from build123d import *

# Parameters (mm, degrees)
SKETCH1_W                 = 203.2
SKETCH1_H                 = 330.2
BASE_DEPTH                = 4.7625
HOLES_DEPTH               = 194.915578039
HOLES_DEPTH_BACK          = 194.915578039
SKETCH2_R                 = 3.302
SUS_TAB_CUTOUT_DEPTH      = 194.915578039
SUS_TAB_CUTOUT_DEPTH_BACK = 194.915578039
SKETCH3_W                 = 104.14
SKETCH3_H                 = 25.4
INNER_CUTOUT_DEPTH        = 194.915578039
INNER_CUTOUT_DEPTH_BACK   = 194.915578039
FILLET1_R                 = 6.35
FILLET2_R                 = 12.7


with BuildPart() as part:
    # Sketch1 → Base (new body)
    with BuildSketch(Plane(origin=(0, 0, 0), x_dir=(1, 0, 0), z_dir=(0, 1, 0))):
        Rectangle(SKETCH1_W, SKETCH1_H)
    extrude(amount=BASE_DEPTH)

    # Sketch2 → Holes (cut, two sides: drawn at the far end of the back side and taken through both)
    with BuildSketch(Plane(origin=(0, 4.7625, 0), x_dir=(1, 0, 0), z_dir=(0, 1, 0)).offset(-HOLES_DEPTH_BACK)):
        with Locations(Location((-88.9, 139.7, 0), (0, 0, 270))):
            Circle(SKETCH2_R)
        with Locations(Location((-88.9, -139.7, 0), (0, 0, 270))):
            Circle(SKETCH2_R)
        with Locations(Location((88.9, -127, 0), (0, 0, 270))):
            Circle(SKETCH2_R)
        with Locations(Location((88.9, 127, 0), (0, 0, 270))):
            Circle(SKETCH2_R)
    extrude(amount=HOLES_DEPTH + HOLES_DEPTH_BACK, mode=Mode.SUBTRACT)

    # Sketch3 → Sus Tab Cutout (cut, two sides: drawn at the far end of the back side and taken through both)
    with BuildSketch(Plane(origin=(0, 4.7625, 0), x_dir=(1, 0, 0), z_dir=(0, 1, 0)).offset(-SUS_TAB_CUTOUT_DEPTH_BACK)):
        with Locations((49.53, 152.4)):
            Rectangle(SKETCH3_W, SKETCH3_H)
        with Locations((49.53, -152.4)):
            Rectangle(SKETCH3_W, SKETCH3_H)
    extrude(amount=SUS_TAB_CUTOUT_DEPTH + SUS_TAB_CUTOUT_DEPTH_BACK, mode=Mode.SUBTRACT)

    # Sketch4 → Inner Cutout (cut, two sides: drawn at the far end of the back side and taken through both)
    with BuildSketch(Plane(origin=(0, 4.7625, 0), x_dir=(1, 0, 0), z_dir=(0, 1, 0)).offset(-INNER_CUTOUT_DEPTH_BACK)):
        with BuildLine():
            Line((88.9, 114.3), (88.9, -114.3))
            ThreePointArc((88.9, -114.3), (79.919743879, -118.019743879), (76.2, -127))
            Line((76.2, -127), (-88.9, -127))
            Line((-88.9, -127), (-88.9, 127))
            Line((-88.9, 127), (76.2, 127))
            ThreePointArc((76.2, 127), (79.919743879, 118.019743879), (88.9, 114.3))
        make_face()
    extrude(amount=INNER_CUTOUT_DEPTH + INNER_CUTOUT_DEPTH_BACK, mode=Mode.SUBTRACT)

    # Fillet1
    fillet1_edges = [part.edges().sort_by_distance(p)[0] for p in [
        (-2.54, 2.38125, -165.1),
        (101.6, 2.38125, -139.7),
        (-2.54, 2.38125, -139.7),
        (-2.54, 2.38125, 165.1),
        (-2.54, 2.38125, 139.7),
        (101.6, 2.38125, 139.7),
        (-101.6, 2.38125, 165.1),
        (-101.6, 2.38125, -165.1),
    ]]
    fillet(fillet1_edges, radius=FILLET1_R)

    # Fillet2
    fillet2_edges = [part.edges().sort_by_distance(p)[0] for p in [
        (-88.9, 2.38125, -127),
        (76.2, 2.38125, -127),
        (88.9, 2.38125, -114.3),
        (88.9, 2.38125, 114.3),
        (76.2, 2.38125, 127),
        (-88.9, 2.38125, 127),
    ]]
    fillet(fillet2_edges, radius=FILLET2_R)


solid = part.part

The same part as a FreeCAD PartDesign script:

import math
import FreeCAD as App
import Part
import Sketcher
from FreeCAD import Vector
Q = App.Units.Quantity


def edges_at(feature, points):
    """Names of the edges that pass closest to the given points."""
    edges = feature.Shape.Edges
    near = lambda p: min(range(len(edges)), key=lambda i: edges[i].distToShape(Part.Vertex(*p))[0])
    return sorted({f"Edge{near(p) + 1}" for p in points})

doc = App.newDocument("Part")
params = doc.addObject("Spreadsheet::Sheet", "Params")
for row, (alias, value) in enumerate([
    ("sketch1_width", "8 in"),
    ("sketch1_height", "13 in"),
    ("pad1_length", "0.1875 in"),
    ("sketch2_diameter", "0.26 in"),
    ("sketch3_height", "1 in"),
    ("sketch3_width", "4.1 in"),
    ("sketch4_radius", "0.5 in"),
    ("sketch4_height", "9 in"),
    ("sketch4_height2", "10 in"),
    ("sketch4_width", "6.5 in"),
    ("fillet_radius", "0.25 in"),
    ("fillet2_radius", "0.5 in"),
], start=1):
    params.set(f"A{row}", alias)
    params.set(f"B{row}", "=" + value)
    params.setAlias(f"B{row}", alias)

body = doc.addObject("PartDesign::Body", "Body")

sketch1 = doc.addObject("Sketcher::SketchObject", "Sketch")
body.addObject(sketch1)
sketch1.AttachmentSupport = (doc.XZ_Plane, [""])
sketch1.MapMode = "FlatFace"
sketch1.addGeometry(Part.LineSegment(Vector(-102, -165, 0), Vector(-102, 165, 0)), False)
sketch1.addGeometry(Part.LineSegment(Vector(-102, 165, 0), Vector(102, 165, 0)), False)
sketch1.addGeometry(Part.LineSegment(Vector(102, 165, 0), Vector(102, -165, 0)), False)
sketch1.addGeometry(Part.LineSegment(Vector(102, -165, 0), Vector(-102, -165, 0)), False)
sketch1.addConstraint(Sketcher.Constraint("Coincident", 0, 2, 1, 1))
sketch1.addConstraint(Sketcher.Constraint("Coincident", 1, 2, 2, 1))
sketch1.addConstraint(Sketcher.Constraint("Coincident", 2, 2, 3, 1))
sketch1.addConstraint(Sketcher.Constraint("Coincident", 3, 2, 0, 1))
sketch1.addConstraint(Sketcher.Constraint("Vertical", 0))
sketch1.addConstraint(Sketcher.Constraint("Horizontal", 1))
sketch1.addConstraint(Sketcher.Constraint("Vertical", 2))
sketch1.addConstraint(Sketcher.Constraint("Horizontal", 3))
sketch1.addConstraint(Sketcher.Constraint("Symmetric", 0, 2, 2, 2, -1, 1))
sketch1.addConstraint(Sketcher.Constraint("DistanceX", 1, 1, 1, 2, Q("8 in")))
sketch1.addConstraint(Sketcher.Constraint("DistanceY", 0, 1, 0, 2, Q("13 in")))
sketch1.setExpression("Constraints[9]", "Params.sketch1_width")
sketch1.setExpression("Constraints[10]", "Params.sketch1_height")
pad1 = doc.addObject("PartDesign::Pad", "Pad")
body.addObject(pad1)
pad1.Profile = sketch1
pad1.setExpression("Length", "Params.pad1_length")
pad1.Reversed = True

sketch2 = doc.addObject("Sketcher::SketchObject", "Sketch001")
body.addObject(sketch2)
sketch2.AttachmentSupport = (doc.XZ_Plane, [""])
sketch2.MapMode = "FlatFace"
sketch2.AttachmentOffset = App.Placement(Vector(0, 0, -0.1875 * 25.4), App.Rotation())
sketch2.addGeometry(Part.Circle(Vector(-88.9, -139.7, 0), Vector(0, 0, 1), 3.3), False)
sketch2.addGeometry(Part.Circle(Vector(-88.9, 139.7, 0), Vector(0, 0, 1), 3.3), False)
sketch2.addGeometry(Part.Circle(Vector(88.9, 127, 0), Vector(0, 0, 1), 3.3), False)
sketch2.addGeometry(Part.Circle(Vector(88.9, -127, 0), Vector(0, 0, 1), 3.3), False)
sketch2.addConstraint(Sketcher.Constraint("Equal", 0, 1))
sketch2.addConstraint(Sketcher.Constraint("Equal", 1, 2))
sketch2.addConstraint(Sketcher.Constraint("Equal", 2, 3))
sketch2.addConstraint(Sketcher.Constraint("Symmetric", 0, 3, 1, 3, -1))
sketch2.addConstraint(Sketcher.Constraint("Symmetric", 2, 3, 3, 3, -1))
sketch2.addConstraint(Sketcher.Constraint("Diameter", 0, Q("0.26 in")))
sketch2.addConstraint(Sketcher.Constraint("DistanceY", -1, 1, 2, 3, Q("5 in")))
sketch2.addConstraint(Sketcher.Constraint("DistanceY", 0, 3, 1, 3, Q("11 in")))
sketch2.addConstraint(Sketcher.Constraint("DistanceX", 1, 3, 2, 3, Q("7 in")))
sketch2.addConstraint(Sketcher.Constraint("DistanceX", 0, 3, -1, 1, Q("3.5 in")))
sketch2.setExpression("Constraints[5]", "Params.sketch2_diameter")
pocket1 = doc.addObject("PartDesign::Pocket", "Pocket")
body.addObject(pocket1)
pocket1.Profile = sketch2
pocket1.Type = "ThroughAll"
pocket1.Midplane = True

sketch3 = doc.addObject("Sketcher::SketchObject", "Sketch002")
body.addObject(sketch3)
sketch3.AttachmentSupport = (doc.XZ_Plane, [""])
sketch3.MapMode = "FlatFace"
sketch3.AttachmentOffset = App.Placement(Vector(0, 0, -0.1875 * 25.4), App.Rotation())
sketch3.addGeometry(Part.LineSegment(Vector(-3, -165, 0), Vector(-3, -140, 0)), False)
sketch3.addGeometry(Part.LineSegment(Vector(-3, -140, 0), Vector(102, -140, 0)), False)
sketch3.addGeometry(Part.LineSegment(Vector(102, -140, 0), Vector(102, -165, 0)), False)
sketch3.addGeometry(Part.LineSegment(Vector(102, -165, 0), Vector(-3, -165, 0)), False)
sketch3.addGeometry(Part.LineSegment(Vector(-3, 140, 0), Vector(-3, 165, 0)), False)
sketch3.addGeometry(Part.LineSegment(Vector(-3, 165, 0), Vector(102, 165, 0)), False)
sketch3.addGeometry(Part.LineSegment(Vector(102, 165, 0), Vector(102, 140, 0)), False)
sketch3.addGeometry(Part.LineSegment(Vector(102, 140, 0), Vector(-3, 140, 0)), False)
sketch3.addConstraint(Sketcher.Constraint("Coincident", 0, 2, 1, 1))
sketch3.addConstraint(Sketcher.Constraint("Coincident", 1, 2, 2, 1))
sketch3.addConstraint(Sketcher.Constraint("Coincident", 2, 2, 3, 1))
sketch3.addConstraint(Sketcher.Constraint("Coincident", 3, 2, 0, 1))
sketch3.addConstraint(Sketcher.Constraint("Coincident", 4, 2, 5, 1))
sketch3.addConstraint(Sketcher.Constraint("Coincident", 5, 2, 6, 1))
sketch3.addConstraint(Sketcher.Constraint("Coincident", 6, 2, 7, 1))
sketch3.addConstraint(Sketcher.Constraint("Coincident", 7, 2, 4, 1))
sketch3.addConstraint(Sketcher.Constraint("Vertical", 0))
sketch3.addConstraint(Sketcher.Constraint("Horizontal", 1))
sketch3.addConstraint(Sketcher.Constraint("Vertical", 2))
sketch3.addConstraint(Sketcher.Constraint("Horizontal", 3))
sketch3.addConstraint(Sketcher.Constraint("Vertical", 4))
sketch3.addConstraint(Sketcher.Constraint("Horizontal", 5))
sketch3.addConstraint(Sketcher.Constraint("Vertical", 6))
sketch3.addConstraint(Sketcher.Constraint("Horizontal", 7))
sketch3.addConstraint(Sketcher.Constraint("Symmetric", 3, 2, 4, 2, -1))
sketch3.addConstraint(Sketcher.Constraint("Symmetric", 1, 2, 6, 2, -1))
sketch3.addConstraint(Sketcher.Constraint("DistanceY", 0, 1, 0, 2, Q("1 in")))
sketch3.addConstraint(Sketcher.Constraint("DistanceX", 1, 1, 1, 2, Q("4.1 in")))
sketch3.addConstraint(Sketcher.Constraint("DistanceX", -1, 1, 1, 2, Q("4 in")))
sketch3.addConstraint(Sketcher.Constraint("DistanceY", 0, 2, 4, 2, Q("12 in")))
sketch3.setExpression("Constraints[18]", "Params.sketch3_height")
sketch3.setExpression("Constraints[19]", "Params.sketch3_width")
pocket2 = doc.addObject("PartDesign::Pocket", "Pocket001")
body.addObject(pocket2)
pocket2.Profile = sketch3
pocket2.Type = "ThroughAll"
pocket2.Midplane = True

sketch4 = doc.addObject("Sketcher::SketchObject", "Sketch003")
body.addObject(sketch4)
sketch4.AttachmentSupport = (doc.XZ_Plane, [""])
sketch4.MapMode = "FlatFace"
sketch4.AttachmentOffset = App.Placement(Vector(0, 0, -0.1875 * 25.4), App.Rotation())
sketch4.addGeometry(Part.LineSegment(Vector(89, 114, 0), Vector(89, -114, 0)), False)
sketch4.addGeometry(Part.ArcOfCircle(Part.Circle(Vector(89, -127, 0), Vector(0, 0, 1), 13), math.radians(90), math.radians(180)), False)
sketch4.addGeometry(Part.LineSegment(Vector(76, -127, 0), Vector(-89, -127, 0)), False)
sketch4.addGeometry(Part.LineSegment(Vector(-89, -127, 0), Vector(-89, 127, 0)), False)
sketch4.addGeometry(Part.LineSegment(Vector(-89, 127, 0), Vector(76, 127, 0)), False)
sketch4.addGeometry(Part.ArcOfCircle(Part.Circle(Vector(89, 127, 0), Vector(0, 0, 1), 13), math.radians(180), math.radians(270)), False)
sketch4.addConstraint(Sketcher.Constraint("Coincident", 0, 2, 1, 1))
sketch4.addConstraint(Sketcher.Constraint("Coincident", 1, 2, 2, 1))
sketch4.addConstraint(Sketcher.Constraint("Coincident", 2, 2, 3, 1))
sketch4.addConstraint(Sketcher.Constraint("Coincident", 3, 2, 4, 1))
sketch4.addConstraint(Sketcher.Constraint("Coincident", 4, 2, 5, 1))
sketch4.addConstraint(Sketcher.Constraint("Coincident", 5, 2, 0, 1))
sketch4.addConstraint(Sketcher.Constraint("Vertical", 0))
sketch4.addConstraint(Sketcher.Constraint("Horizontal", 2))
sketch4.addConstraint(Sketcher.Constraint("Vertical", 3))
sketch4.addConstraint(Sketcher.Constraint("Horizontal", 4))
sketch4.addConstraint(Sketcher.Constraint("Equal", 1, 5))
sketch4.addConstraint(Sketcher.Constraint("Symmetric", 1, 3, 5, 3, -1))
sketch4.addConstraint(Sketcher.Constraint("Horizontal", 5, 3, 3, 2))
sketch4.addConstraint(Sketcher.Constraint("Vertical", 5, 3, 0, 2))
sketch4.addConstraint(Sketcher.Constraint("Radius", 1, Q("0.5 in")))
sketch4.addConstraint(Sketcher.Constraint("DistanceY", 0, 2, 0, 1, Q("9 in")))
sketch4.addConstraint(Sketcher.Constraint("DistanceY", 3, 1, 3, 2, Q("10 in")))
sketch4.addConstraint(Sketcher.Constraint("DistanceX", 2, 2, 2, 1, Q("6.5 in")))
sketch4.addConstraint(Sketcher.Constraint("DistanceX", -1, 1, 1, 2, Q("3 in")))
sketch4.setExpression("Constraints[14]", "Params.sketch4_radius")
sketch4.setExpression("Constraints[15]", "Params.sketch4_height")
sketch4.setExpression("Constraints[16]", "Params.sketch4_height2")
sketch4.setExpression("Constraints[17]", "Params.sketch4_width")
pocket3 = doc.addObject("PartDesign::Pocket", "Pocket002")
body.addObject(pocket3)
pocket3.Profile = sketch4
pocket3.Type = "ThroughAll"
pocket3.Midplane = True
doc.recompute()

fillet = doc.addObject("PartDesign::Fillet", "Fillet")
body.addObject(fillet)
fillet.Base = (pocket3, edges_at(pocket3, [
    (-2.54, 2.381, -165.1),
    (101.6, 2.381, -139.7),
    (-2.54, 2.381, -139.7),
    (-2.54, 2.381, 165.1),
    (-2.54, 2.381, 139.7),
    (101.6, 2.381, 139.7),
    (-101.6, 2.381, 165.1),
    (-101.6, 2.381, -165.1),
]))
fillet.setExpression("Radius", "Params.fillet_radius")
doc.recompute()

fillet2 = doc.addObject("PartDesign::Fillet", "Fillet001")
body.addObject(fillet2)
fillet2.Base = (fillet, edges_at(fillet, [
    (-88.9, 2.381, -127),
    (76.2, 2.381, -127),
    (88.9, 2.381, -114.3),
    (88.9, 2.381, 114.3),
    (76.2, 2.381, 127),
    (-88.9, 2.381, 127),
]))
fillet2.setExpression("Radius", "Params.fillet2_radius")

doc.recompute()
